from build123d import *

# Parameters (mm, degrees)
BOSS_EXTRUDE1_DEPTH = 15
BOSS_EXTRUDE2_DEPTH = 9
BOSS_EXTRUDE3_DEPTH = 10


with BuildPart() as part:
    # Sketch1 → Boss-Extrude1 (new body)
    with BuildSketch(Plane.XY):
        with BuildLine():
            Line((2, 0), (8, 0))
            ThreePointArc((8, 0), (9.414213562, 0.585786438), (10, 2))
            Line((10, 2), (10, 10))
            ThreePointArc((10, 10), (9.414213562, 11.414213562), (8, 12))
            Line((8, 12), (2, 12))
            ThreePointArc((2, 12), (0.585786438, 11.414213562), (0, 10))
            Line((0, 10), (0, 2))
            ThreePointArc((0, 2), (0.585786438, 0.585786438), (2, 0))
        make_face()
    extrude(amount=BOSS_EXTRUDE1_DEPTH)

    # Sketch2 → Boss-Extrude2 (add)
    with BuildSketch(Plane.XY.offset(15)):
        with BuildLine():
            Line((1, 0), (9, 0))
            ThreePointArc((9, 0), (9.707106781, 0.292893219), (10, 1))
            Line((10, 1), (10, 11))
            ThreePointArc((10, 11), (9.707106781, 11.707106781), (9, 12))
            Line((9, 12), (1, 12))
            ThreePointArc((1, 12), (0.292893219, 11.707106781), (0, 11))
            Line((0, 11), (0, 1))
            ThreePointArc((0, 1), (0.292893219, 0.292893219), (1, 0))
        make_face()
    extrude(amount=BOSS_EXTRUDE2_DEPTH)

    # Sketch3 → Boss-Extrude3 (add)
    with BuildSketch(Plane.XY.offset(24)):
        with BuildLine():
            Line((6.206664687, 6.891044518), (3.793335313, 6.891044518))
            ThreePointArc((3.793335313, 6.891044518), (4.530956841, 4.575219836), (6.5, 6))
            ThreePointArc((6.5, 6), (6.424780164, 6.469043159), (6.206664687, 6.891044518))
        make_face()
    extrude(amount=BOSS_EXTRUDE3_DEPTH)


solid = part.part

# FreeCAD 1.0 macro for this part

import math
import FreeCAD as App
import Part
import Sketcher
from FreeCAD import Vector
Q = App.Units.Quantity

doc = App.newDocument("Part")
body = doc.addObject("PartDesign::Body", "Body")

sketch1 = body.newObject("Sketcher::SketchObject", "Sketch")
sketch1.AttachmentSupport = (doc.getObject("XY_Plane"), [""])
sketch1.MapMode = "FlatFace"
sketch1.addGeometry([
    Part.LineSegment(Vector(2, 0, 0), Vector(8, 0, 0)),
    Part.ArcOfCircle(Part.Circle(Vector(8, 2, 0), Vector(0, 0, 1), 2), math.radians(-90), math.radians(0)),
    Part.LineSegment(Vector(10, 2, 0), Vector(10, 10, 0)),
    Part.ArcOfCircle(Part.Circle(Vector(8, 10, 0), Vector(0, 0, 1), 2), math.radians(0), math.radians(90)),
    Part.LineSegment(Vector(8, 12, 0), Vector(2, 12, 0)),
    Part.ArcOfCircle(Part.Circle(Vector(2, 10, 0), Vector(0, 0, 1), 2), math.radians(90), math.radians(180)),
    Part.LineSegment(Vector(0, 10, 0), Vector(0, 2, 0)),
    Part.ArcOfCircle(Part.Circle(Vector(2, 2, 0), Vector(0, 0, 1), 2), math.radians(-180), math.radians(-90)),
], False)
sketch1.addConstraint([
    Sketcher.Constraint("Tangent", 0, 2, 1, 1),
    Sketcher.Constraint("Tangent", 1, 2, 2, 1),
    Sketcher.Constraint("Tangent", 2, 2, 3, 1),
    Sketcher.Constraint("Tangent", 3, 2, 4, 1),
    Sketcher.Constraint("Tangent", 4, 2, 5, 1),
    Sketcher.Constraint("Tangent", 5, 2, 6, 1),
    Sketcher.Constraint("Tangent", 6, 2, 7, 1),
    Sketcher.Constraint("Tangent", 7, 2, 0, 1),
    Sketcher.Constraint("Horizontal", 0),
    Sketcher.Constraint("Vertical", 2),
    Sketcher.Constraint("Horizontal", 4),
    Sketcher.Constraint("Vertical", 6),
    Sketcher.Constraint("Equal", 1, 3),
    Sketcher.Constraint("Equal", 3, 5),
    Sketcher.Constraint("Equal", 5, 7),
    Sketcher.Constraint("PointOnObject", 0, 2, -1),
    Sketcher.Constraint("PointOnObject", 5, 2, -2),
    Sketcher.Constraint("Radius", 1, Q("2 mm")),
    Sketcher.Constraint("DistanceX", 0, 1, 0, 2, Q("6 mm")),
    Sketcher.Constraint("DistanceY", 2, 1, 2, 2, Q("8 mm")),
])
pad1 = body.newObject("PartDesign::Pad", "Pad")
pad1.Profile = sketch1
pad1.Length = 15

sketch2 = body.newObject("Sketcher::SketchObject", "Sketch001")
sketch2.AttachmentSupport = (doc.getObject("XY_Plane"), [""])
sketch2.MapMode = "FlatFace"
sketch2.AttachmentOffset = App.Placement(Vector(0, 0, 15), App.Rotation())
sketch2.addGeometry([
    Part.LineSegment(Vector(1, 0, 0), Vector(9, 0, 0)),
    Part.ArcOfCircle(Part.Circle(Vector(9, 1, 0), Vector(0, 0, 1), 1), math.radians(-90), math.radians(0)),
    Part.LineSegment(Vector(10, 1, 0), Vector(10, 11, 0)),
    Part.ArcOfCircle(Part.Circle(Vector(9, 11, 0), Vector(0, 0, 1), 1), math.radians(0), math.radians(90)),
    Part.LineSegment(Vector(9, 12, 0), Vector(1, 12, 0)),
    Part.ArcOfCircle(Part.Circle(Vector(1, 11, 0), Vector(0, 0, 1), 1), math.radians(90), math.radians(180)),
    Part.LineSegment(Vector(0, 11, 0), Vector(0, 1, 0)),
    Part.ArcOfCircle(Part.Circle(Vector(1, 1, 0), Vector(0, 0, 1), 1), math.radians(-180), math.radians(-90)),
], False)
sketch2.addConstraint([
    Sketcher.Constraint("Tangent", 0, 2, 1, 1),
    Sketcher.Constraint("Tangent", 1, 2, 2, 1),
    Sketcher.Constraint("Tangent", 2, 2, 3, 1),
    Sketcher.Constraint("Tangent", 3, 2, 4, 1),
    Sketcher.Constraint("Tangent", 4, 2, 5, 1),
    Sketcher.Constraint("Tangent", 5, 2, 6, 1),
    Sketcher.Constraint("Tangent", 6, 2, 7, 1),
    Sketcher.Constraint("Tangent", 7, 2, 0, 1),
    Sketcher.Constraint("Horizontal", 0),
    Sketcher.Constraint("Vertical", 2),
    Sketcher.Constraint("Horizontal", 4),
    Sketcher.Constraint("Vertical", 6),
    Sketcher.Constraint("Equal", 1, 3),
    Sketcher.Constraint("Equal", 3, 5),
    Sketcher.Constraint("Equal", 5, 7),
    Sketcher.Constraint("PointOnObject", 0, 2, -1),
    Sketcher.Constraint("PointOnObject", 5, 2, -2),
    Sketcher.Constraint("Radius", 1, Q("1 mm")),
    Sketcher.Constraint("DistanceX", 0, 1, 0, 2, Q("8 mm")),
    Sketcher.Constraint("DistanceY", 2, 1, 2, 2, Q("10 mm")),
])
pad2 = body.newObject("PartDesign::Pad", "Pad001")
pad2.Profile = sketch2
pad2.Length = 9

sketch3 = body.newObject("Sketcher::SketchObject", "Sketch002")
sketch3.AttachmentSupport = (doc.getObject("XY_Plane"), [""])
sketch3.MapMode = "FlatFace"
sketch3.AttachmentOffset = App.Placement(Vector(0, 0, 24), App.Rotation())
sketch3.addGeometry([
    Part.LineSegment(Vector(6.2, 6.9, 0), Vector(3.8, 6.9, 0)),
    Part.ArcOfCircle(Part.Circle(Vector(5, 6, 0), Vector(0, 0, 1), 1.5), math.radians(144), math.radians(360)),
    Part.ArcOfCircle(Part.Circle(Vector(5, 6, 0), Vector(0, 0, 1), 1.5), math.radians(0), math.radians(36)),
], False)
sketch3.addConstraint([
    Sketcher.Constraint("Coincident", 0, 2, 1, 1),
    Sketcher.Constraint("Tangent", 1, 2, 2, 1),
    Sketcher.Constraint("Coincident", 2, 2, 0, 1),
    Sketcher.Constraint("Horizontal", 0),
    Sketcher.Constraint("Equal", 1, 2),
    Sketcher.Constraint("Horizontal", 2, 3, 1, 2),
    Sketcher.Constraint("Radius", 1, Q("1.5 mm")),
    Sketcher.Constraint("DistanceX", -1, 1, 1, 3, Q("5 mm")),
    Sketcher.Constraint("DistanceY", -1, 1, 1, 3, Q("6 mm")),
    Sketcher.Constraint("DistanceX", 0, 2, 0, 1, Q("2.413329 mm")),
])
pad3 = body.newObject("PartDesign::Pad", "Pad002")
pad3.Profile = sketch3
pad3.Length = 10

doc.recompute()
